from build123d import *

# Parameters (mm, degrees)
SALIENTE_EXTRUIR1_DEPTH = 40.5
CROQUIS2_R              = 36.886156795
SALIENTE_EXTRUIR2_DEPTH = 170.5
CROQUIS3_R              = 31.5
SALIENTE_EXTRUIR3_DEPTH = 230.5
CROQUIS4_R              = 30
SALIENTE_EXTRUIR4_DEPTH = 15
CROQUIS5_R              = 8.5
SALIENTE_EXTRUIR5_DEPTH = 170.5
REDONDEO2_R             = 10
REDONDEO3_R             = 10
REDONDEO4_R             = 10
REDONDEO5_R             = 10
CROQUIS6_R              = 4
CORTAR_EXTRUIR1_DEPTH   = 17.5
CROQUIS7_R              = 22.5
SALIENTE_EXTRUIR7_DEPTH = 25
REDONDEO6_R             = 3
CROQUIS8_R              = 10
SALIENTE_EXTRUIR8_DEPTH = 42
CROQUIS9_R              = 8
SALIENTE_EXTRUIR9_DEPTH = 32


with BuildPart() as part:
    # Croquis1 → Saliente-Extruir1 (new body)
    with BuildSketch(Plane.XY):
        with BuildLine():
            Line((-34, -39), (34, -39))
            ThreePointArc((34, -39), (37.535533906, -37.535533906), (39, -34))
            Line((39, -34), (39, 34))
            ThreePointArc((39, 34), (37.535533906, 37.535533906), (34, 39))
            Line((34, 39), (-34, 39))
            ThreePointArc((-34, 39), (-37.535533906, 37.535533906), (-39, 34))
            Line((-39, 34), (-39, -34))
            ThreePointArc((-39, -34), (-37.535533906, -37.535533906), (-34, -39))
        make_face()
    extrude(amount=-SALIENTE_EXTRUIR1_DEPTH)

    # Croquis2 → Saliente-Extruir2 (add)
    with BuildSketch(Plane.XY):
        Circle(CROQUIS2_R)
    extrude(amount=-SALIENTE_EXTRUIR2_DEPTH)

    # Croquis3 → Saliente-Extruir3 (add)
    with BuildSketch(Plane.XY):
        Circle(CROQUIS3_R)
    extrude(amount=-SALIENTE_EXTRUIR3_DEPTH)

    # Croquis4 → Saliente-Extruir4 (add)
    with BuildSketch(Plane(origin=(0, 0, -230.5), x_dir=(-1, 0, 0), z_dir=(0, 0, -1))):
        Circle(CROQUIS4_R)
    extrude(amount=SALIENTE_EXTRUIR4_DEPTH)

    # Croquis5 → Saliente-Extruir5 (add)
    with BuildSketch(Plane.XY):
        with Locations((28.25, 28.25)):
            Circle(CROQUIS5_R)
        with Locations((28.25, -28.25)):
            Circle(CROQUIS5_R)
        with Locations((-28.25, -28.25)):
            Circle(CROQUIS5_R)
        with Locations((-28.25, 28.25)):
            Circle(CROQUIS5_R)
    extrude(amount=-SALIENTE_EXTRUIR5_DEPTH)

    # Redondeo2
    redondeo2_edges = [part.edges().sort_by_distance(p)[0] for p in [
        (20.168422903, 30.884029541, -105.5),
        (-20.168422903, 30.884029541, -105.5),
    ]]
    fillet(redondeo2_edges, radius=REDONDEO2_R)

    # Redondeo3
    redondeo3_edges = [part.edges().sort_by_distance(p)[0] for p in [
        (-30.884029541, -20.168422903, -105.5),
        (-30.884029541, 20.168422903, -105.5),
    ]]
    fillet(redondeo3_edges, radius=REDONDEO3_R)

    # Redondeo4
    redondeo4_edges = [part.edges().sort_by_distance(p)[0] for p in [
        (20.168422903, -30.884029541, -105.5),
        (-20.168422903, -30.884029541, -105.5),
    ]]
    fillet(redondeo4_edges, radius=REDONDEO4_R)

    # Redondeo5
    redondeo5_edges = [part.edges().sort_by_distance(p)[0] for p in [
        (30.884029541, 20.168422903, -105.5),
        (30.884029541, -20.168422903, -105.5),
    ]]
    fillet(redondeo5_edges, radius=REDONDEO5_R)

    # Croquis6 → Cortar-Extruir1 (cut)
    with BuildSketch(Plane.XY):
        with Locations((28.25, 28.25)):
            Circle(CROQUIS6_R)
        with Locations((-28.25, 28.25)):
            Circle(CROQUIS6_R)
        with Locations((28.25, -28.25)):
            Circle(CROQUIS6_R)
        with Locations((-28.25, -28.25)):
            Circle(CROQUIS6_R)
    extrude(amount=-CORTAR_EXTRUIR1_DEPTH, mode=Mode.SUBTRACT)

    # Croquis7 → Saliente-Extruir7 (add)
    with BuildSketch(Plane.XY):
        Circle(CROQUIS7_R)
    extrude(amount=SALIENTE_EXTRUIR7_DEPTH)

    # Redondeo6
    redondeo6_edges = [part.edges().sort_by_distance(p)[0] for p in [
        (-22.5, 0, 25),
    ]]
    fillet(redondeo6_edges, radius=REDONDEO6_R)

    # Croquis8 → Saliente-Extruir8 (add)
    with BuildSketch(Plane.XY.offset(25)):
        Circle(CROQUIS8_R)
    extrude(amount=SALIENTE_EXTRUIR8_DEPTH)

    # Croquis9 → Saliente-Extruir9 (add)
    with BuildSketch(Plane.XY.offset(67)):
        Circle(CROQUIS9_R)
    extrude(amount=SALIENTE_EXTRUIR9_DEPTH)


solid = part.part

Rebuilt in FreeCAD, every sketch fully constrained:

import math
import FreeCAD as App
import Part
import Sketcher
from FreeCAD import Vector
Q = App.Units.Quantity


def edges_at(feature, points):
    """Names of the edges that pass closest to the given points."""
    edges = feature.Shape.Edges
    near = lambda p: min(range(len(edges)), key=lambda i: edges[i].distToShape(Part.Vertex(*p))[0])
    return sorted({f"Edge{near(p) + 1}" for p in points})

doc = App.newDocument("Part")
body = doc.addObject("PartDesign::Body", "Body")

# Sketch on XY plane
sketch1 = doc.addObject("Sketcher::SketchObject", "Sketch")
body.addObject(sketch1)
sketch1.AttachmentSupport = (doc.XY_Plane, [""])
sketch1.MapMode = "FlatFace"
sketch1.addGeometry([
    Part.LineSegment(Vector(-34, -39, 0), Vector(34, -39, 0)),  # 0
    Part.ArcOfCircle(Part.Circle(Vector(34, -34, 0), Vector(0, 0, 1), 5), math.radians(-90), math.radians(0)),  # 1
    Part.LineSegment(Vector(39, -34, 0), Vector(39, 34, 0)),  # 2
    Part.ArcOfCircle(Part.Circle(Vector(34, 34, 0), Vector(0, 0, 1), 5), math.radians(0), math.radians(90)),  # 3
    Part.LineSegment(Vector(34, 39, 0), Vector(-34, 39, 0)),  # 4
    Part.ArcOfCircle(Part.Circle(Vector(-34, 34, 0), Vector(0, 0, 1), 5), math.radians(90), math.radians(180)),  # 5
    Part.LineSegment(Vector(-39, 34, 0), Vector(-39, -34, 0)),  # 6
    Part.ArcOfCircle(Part.Circle(Vector(-34, -34, 0), Vector(0, 0, 1), 5), math.radians(180), math.radians(270)),  # 7
], False)
sketch1.addConstraint([
    Sketcher.Constraint("Tangent", 0, 2, 1, 1),
    Sketcher.Constraint("Tangent", 1, 2, 2, 1),
    Sketcher.Constraint("Tangent", 2, 2, 3, 1),
    Sketcher.Constraint("Tangent", 3, 2, 4, 1),
    Sketcher.Constraint("Tangent", 4, 2, 5, 1),
    Sketcher.Constraint("Tangent", 5, 2, 6, 1),
    Sketcher.Constraint("Tangent", 6, 2, 7, 1),
    Sketcher.Constraint("Tangent", 7, 2, 0, 1),
    Sketcher.Constraint("Horizontal", 0),
    Sketcher.Constraint("Vertical", 2),
    Sketcher.Constraint("Horizontal", 4),
    Sketcher.Constraint("Vertical", 6),
    Sketcher.Constraint("Equal", 1, 3),
    Sketcher.Constraint("Equal", 3, 5),
    Sketcher.Constraint("Equal", 5, 7),
    Sketcher.Constraint("Symmetric", 1, 3, 5, 3, -1, 1),
    Sketcher.Constraint("Equal", 4, 2),
    Sketcher.Constraint("Radius", 1, Q("5 mm")),
    Sketcher.Constraint("DistanceX", 0, 1, 0, 2, Q("68 mm")),
])
pad1 = doc.addObject("PartDesign::Pad", "Pad")
body.addObject(pad1)
pad1.Profile = sketch1
pad1.Length = 40.5
pad1.Reversed = True

# Sketch on XY plane
sketch2 = doc.addObject("Sketcher::SketchObject", "Sketch001")
body.addObject(sketch2)
sketch2.AttachmentSupport = (doc.XY_Plane, [""])
sketch2.MapMode = "FlatFace"
sketch2.addGeometry(Part.Circle(Vector(0, 0, 0), Vector(0, 0, 1), 37), False)
sketch2.addConstraint([
    Sketcher.Constraint("Coincident", 0, 3, -1, 1),
    Sketcher.Constraint("Diameter", 0, Q("73.772314 mm")),
])
pad2 = doc.addObject("PartDesign::Pad", "Pad001")
body.addObject(pad2)
pad2.Profile = sketch2
pad2.Length = 170.5
pad2.Reversed = True

# Sketch on XY plane
sketch3 = doc.addObject("Sketcher::SketchObject", "Sketch002")
body.addObject(sketch3)
sketch3.AttachmentSupport = (doc.XY_Plane, [""])
sketch3.MapMode = "FlatFace"
sketch3.addGeometry(Part.Circle(Vector(0, 0, 0), Vector(0, 0, 1), 32), False)
sketch3.addConstraint([
    Sketcher.Constraint("Coincident", 0, 3, -1, 1),
    Sketcher.Constraint("Diameter", 0, Q("63 mm")),
])
pad3 = doc.addObject("PartDesign::Pad", "Pad002")
body.addObject(pad3)
pad3.Profile = sketch3
pad3.Length = 230.5
pad3.Reversed = True

# Sketch on XY plane
sketch4 = doc.addObject("Sketcher::SketchObject", "Sketch003")
body.addObject(sketch4)
sketch4.AttachmentSupport = (doc.XY_Plane, [""])
sketch4.MapMode = "FlatFace"
sketch4.AttachmentOffset = App.Placement(Vector(0, 0, -230.5), App.Rotation())
sketch4.addGeometry(Part.Circle(Vector(0, 0, 0), Vector(0, 0, 1), 30), False)
sketch4.addConstraint([
    Sketcher.Constraint("Coincident", 0, 3, -1, 1),
    Sketcher.Constraint("Diameter", 0, Q("60 mm")),
])
pad4 = doc.addObject("PartDesign::Pad", "Pad003")
body.addObject(pad4)
pad4.Profile = sketch4
pad4.Length = 15
pad4.Reversed = True

# Sketch on XY plane
sketch5 = doc.addObject("Sketcher::SketchObject", "Sketch004")
body.addObject(sketch5)
sketch5.AttachmentSupport = (doc.XY_Plane, [""])
sketch5.MapMode = "FlatFace"
sketch5.addGeometry([
    Part.Circle(Vector(28, 28, 0), Vector(0, 0, 1), 8),
    Part.Circle(Vector(28, -28, 0), Vector(0, 0, 1), 8),
    Part.Circle(Vector(-28, -28, 0), Vector(0, 0, 1), 8),
    Part.Circle(Vector(-28, 28, 0), Vector(0, 0, 1), 8),
], False)
sketch5.addConstraint([
    Sketcher.Constraint("Equal", 0, 1),
    Sketcher.Constraint("Equal", 1, 2),
    Sketcher.Constraint("Equal", 2, 3),
    Sketcher.Constraint("Symmetric", 0, 3, 2, 3, -1, 1),
    Sketcher.Constraint("Symmetric", 1, 3, 3, 3, -1, 1),
    Sketcher.Constraint("Symmetric", 1, 3, 2, 3, -2),
    Sketcher.Constraint("Diameter", 0, Q("17 mm")),
    Sketcher.Constraint("DistanceY", 1, 3, 0, 3, Q("56.5 mm")),
    Sketcher.Constraint("DistanceX", 2, 3, 1, 3, Q("56.5 mm")),
])
pad5 = doc.addObject("PartDesign::Pad", "Pad004")
body.addObject(pad5)
pad5.Profile = sketch5
pad5.Length = 170.5
pad5.Reversed = True
doc.recompute()

fillet = doc.addObject("PartDesign::Fillet", "Fillet")
body.addObject(fillet)
fillet.Base = (pad5, edges_at(pad5, [(20.168, 30.884, -105.5), (-20.168, 30.884, -105.5)]))
fillet.Radius = 10
doc.recompute()

fillet2 = doc.addObject("PartDesign::Fillet", "Fillet001")
body.addObject(fillet2)
fillet2.Base = (fillet, edges_at(fillet, [(-30.884, -20.168, -105.5), (-30.884, 20.168, -105.5)]))
fillet2.Radius = 10
doc.recompute()

fillet3 = doc.addObject("PartDesign::Fillet", "Fillet002")
body.addObject(fillet3)
fillet3.Base = (fillet2, edges_at(fillet2, [(20.168, -30.884, -105.5), (-20.168, -30.884, -105.5)]))
fillet3.Radius = 10
doc.recompute()

fillet4 = doc.addObject("PartDesign::Fillet", "Fillet003")
body.addObject(fillet4)
fillet4.Base = (fillet3, edges_at(fillet3, [(30.884, 20.168, -105.5), (30.884, -20.168, -105.5)]))
fillet4.Radius = 10

# Sketch on XY plane
sketch6 = doc.addObject("Sketcher::SketchObject", "Sketch005")
body.addObject(sketch6)
sketch6.AttachmentSupport = (doc.XY_Plane, [""])
sketch6.MapMode = "FlatFace"
sketch6.addGeometry([
    Part.Circle(Vector(28.2, 28.2, 0), Vector(0, 0, 1), 4),
    Part.Circle(Vector(-28.2, 28.2, 0), Vector(0, 0, 1), 4),
    Part.Circle(Vector(28.2, -28.2, 0), Vector(0, 0, 1), 4),
    Part.Circle(Vector(-28.2, -28.2, 0), Vector(0, 0, 1), 4),
], False)
sketch6.addConstraint([
    Sketcher.Constraint("Equal", 0, 1),
    Sketcher.Constraint("Equal", 1, 2),
    Sketcher.Constraint("Equal", 2, 3),
    Sketcher.Constraint("Symmetric", 1, 3, 2, 3, -1, 1),
    Sketcher.Constraint("Symmetric", 0, 3, 3, 3, -1, 1),
    Sketcher.Constraint("Symmetric", 0, 3, 1, 3, -2),
    Sketcher.Constraint("Diameter", 0, Q("8 mm")),
    Sketcher.Constraint("DistanceX", 1, 3, 0, 3, Q("56.5 mm")),
    Sketcher.Constraint("DistanceY", 2, 3, 0, 3, Q("56.5 mm")),
])
pocket1 = doc.addObject("PartDesign::Pocket", "Pocket")
body.addObject(pocket1)
pocket1.Profile = sketch6
pocket1.Length = 17.5

# Sketch on XY plane
sketch7 = doc.addObject("Sketcher::SketchObject", "Sketch006")
body.addObject(sketch7)
sketch7.AttachmentSupport = (doc.XY_Plane, [""])
sketch7.MapMode = "FlatFace"
sketch7.addGeometry(Part.Circle(Vector(0, 0, 0), Vector(0, 0, 1), 22), False)
sketch7.addConstraint([
    Sketcher.Constraint("Coincident", 0, 3, -1, 1),
    Sketcher.Constraint("Diameter", 0, Q("45 mm")),
])
pad6 = doc.addObject("PartDesign::Pad", "Pad005")
body.addObject(pad6)
pad6.Profile = sketch7
pad6.Length = 25
doc.recompute()

fillet5 = doc.addObject("PartDesign::Fillet", "Fillet004")
body.addObject(fillet5)
fillet5.Base = (pad6, edges_at(pad6, [(-22.5, 0, 25)]))
fillet5.Radius = 3

# Sketch on XY plane
sketch8 = doc.addObject("Sketcher::SketchObject", "Sketch007")
body.addObject(sketch8)
sketch8.AttachmentSupport = (doc.XY_Plane, [""])
sketch8.MapMode = "FlatFace"
sketch8.AttachmentOffset = App.Placement(Vector(0, 0, 25), App.Rotation())
sketch8.addGeometry(Part.Circle(Vector(0, 0, 0), Vector(0, 0, 1), 10), False)
sketch8.addConstraint([
    Sketcher.Constraint("Coincident", 0, 3, -1, 1),
    Sketcher.Constraint("Diameter", 0, Q("20 mm")),
])
pad7 = doc.addObject("PartDesign::Pad", "Pad006")
body.addObject(pad7)
pad7.Profile = sketch8
pad7.Length = 42

# Sketch on XY plane
sketch9 = doc.addObject("Sketcher::SketchObject", "Sketch008")
body.addObject(sketch9)
sketch9.AttachmentSupport = (doc.XY_Plane, [""])
sketch9.MapMode = "FlatFace"
sketch9.AttachmentOffset = App.Placement(Vector(0, 0, 67), App.Rotation())
sketch9.addGeometry(Part.Circle(Vector(0, 0, 0), Vector(0, 0, 1), 8), False)
sketch9.addConstraint([
    Sketcher.Constraint("Coincident", 0, 3, -1, 1),
    Sketcher.Constraint("Diameter", 0, Q("16 mm")),
])
pad8 = doc.addObject("PartDesign::Pad", "Pad007")
body.addObject(pad8)
pad8.Profile = sketch9
pad8.Length = 32

doc.recompute()
